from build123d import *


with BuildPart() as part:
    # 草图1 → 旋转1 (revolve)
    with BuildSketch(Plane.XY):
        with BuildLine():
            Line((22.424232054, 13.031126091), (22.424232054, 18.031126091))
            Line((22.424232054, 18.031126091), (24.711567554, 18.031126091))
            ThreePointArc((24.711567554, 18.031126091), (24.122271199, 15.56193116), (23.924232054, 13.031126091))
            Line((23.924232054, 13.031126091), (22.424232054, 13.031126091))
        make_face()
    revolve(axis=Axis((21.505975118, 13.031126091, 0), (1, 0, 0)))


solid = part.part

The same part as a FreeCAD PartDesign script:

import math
import FreeCAD as App
import Part
import Sketcher
from FreeCAD import Vector

doc = App.newDocument("Part")
body = doc.addObject("PartDesign::Body", "Body")

# Sketch on XY plane
sketch1 = body.newObject("Sketcher::SketchObject", "Sketch")
sketch1.AttachmentSupport = (doc.getObject("XY_Plane"), [""])
sketch1.MapMode = "FlatFace"
sketch1.addGeometry([
    Part.LineSegment(Vector(22.4, 18, 0), Vector(22.4, 13, 0)),
    Part.LineSegment(Vector(22.4, 13, 0), Vector(23.9, 13, 0)),
    Part.ArcOfCircle(Part.Circle(Vector(40.2, 13, 0), Vector(0, 0, 1), 16.3), math.radians(162.1), math.radians(180)),
    Part.LineSegment(Vector(24.7, 18, 0), Vector(22.4, 18, 0)),
], False)
sketch1.addGeometry(Part.LineSegment(Vector(22.4, 13, 0), Vector(40.2, 13, 0)), True)  # axis
sketch1.addConstraint([
    Sketcher.Constraint("Coincident", 0, 2, 1, 1),
    Sketcher.Constraint("Coincident", 1, 2, 2, 2),
    Sketcher.Constraint("Coincident", 2, 1, 3, 1),
    Sketcher.Constraint("Coincident", 3, 2, 0, 1),
    Sketcher.Constraint("Vertical", 0),
    Sketcher.Constraint("Horizontal", 1),
    Sketcher.Constraint("Horizontal", 3),
    Sketcher.Constraint("Horizontal", 4),
    Sketcher.Constraint("Coincident", 4, 1, 0, 2),
    Sketcher.Constraint("Coincident", 4, 2, 2, 3),
    Sketcher.Constraint("DistanceY", 0, 2, 0, 1, 5.0),
    Sketcher.Constraint("Radius", 2, 16.27),
    Sketcher.Constraint("DistanceX", 1, 1, 1, 2, 1.5),
    Sketcher.Constraint("DistanceX", -1, 1, 2, 3, 40.194232),
    Sketcher.Constraint("DistanceY", -1, 1, 2, 3, 13.031126),
])
revolution = body.newObject("PartDesign::Revolution", "Revolution")
revolution.Profile = sketch1
revolution.ReferenceAxis = (sketch1, ["Axis0"])
revolution.Angle = 360

doc.recompute()
